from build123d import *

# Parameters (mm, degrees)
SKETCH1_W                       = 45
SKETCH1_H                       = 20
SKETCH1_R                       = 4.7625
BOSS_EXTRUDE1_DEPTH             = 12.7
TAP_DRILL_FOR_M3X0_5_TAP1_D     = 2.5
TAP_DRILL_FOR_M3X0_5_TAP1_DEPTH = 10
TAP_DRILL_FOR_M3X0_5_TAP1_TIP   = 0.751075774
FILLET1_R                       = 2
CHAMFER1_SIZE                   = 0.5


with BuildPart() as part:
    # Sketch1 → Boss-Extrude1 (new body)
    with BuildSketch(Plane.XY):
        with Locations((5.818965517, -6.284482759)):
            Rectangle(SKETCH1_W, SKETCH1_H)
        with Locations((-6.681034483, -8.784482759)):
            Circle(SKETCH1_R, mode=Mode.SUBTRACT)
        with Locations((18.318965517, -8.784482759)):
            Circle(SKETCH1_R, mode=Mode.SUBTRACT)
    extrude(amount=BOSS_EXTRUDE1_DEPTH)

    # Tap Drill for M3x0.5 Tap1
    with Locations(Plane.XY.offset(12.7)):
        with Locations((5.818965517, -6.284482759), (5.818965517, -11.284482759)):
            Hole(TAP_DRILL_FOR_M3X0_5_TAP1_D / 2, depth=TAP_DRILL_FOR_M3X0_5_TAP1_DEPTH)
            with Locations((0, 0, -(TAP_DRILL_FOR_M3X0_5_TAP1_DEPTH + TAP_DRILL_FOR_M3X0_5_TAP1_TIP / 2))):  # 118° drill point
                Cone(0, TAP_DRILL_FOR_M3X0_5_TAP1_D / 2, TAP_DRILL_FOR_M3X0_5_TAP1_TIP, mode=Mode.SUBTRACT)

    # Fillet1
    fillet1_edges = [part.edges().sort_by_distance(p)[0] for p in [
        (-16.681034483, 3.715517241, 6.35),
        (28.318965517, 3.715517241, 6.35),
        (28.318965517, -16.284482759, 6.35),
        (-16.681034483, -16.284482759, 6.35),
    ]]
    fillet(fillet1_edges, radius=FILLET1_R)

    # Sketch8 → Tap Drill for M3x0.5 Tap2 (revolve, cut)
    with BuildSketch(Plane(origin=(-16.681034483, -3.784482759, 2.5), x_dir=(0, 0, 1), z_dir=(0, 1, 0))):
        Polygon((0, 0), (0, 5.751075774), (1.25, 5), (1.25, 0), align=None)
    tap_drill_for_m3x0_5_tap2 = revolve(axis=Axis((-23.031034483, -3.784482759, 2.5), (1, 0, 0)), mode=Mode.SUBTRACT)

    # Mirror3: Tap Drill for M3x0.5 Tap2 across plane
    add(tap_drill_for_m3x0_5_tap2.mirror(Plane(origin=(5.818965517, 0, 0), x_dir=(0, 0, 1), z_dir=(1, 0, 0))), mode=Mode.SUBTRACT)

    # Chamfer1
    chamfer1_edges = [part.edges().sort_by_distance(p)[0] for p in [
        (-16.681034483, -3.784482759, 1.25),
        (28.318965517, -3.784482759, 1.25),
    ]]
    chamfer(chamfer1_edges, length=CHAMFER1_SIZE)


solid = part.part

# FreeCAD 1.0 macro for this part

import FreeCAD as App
import Part
import Sketcher
Q = App.Units.Quantity


def edges_at(feature, points):
    """Names of the edges that pass closest to the given points."""
    edges = feature.Shape.Edges
    near = lambda p: min(range(len(edges)), key=lambda i: edges[i].distToShape(Part.Vertex(*p))[0])
    return sorted({f"Edge{near(p) + 1}" for p in points})


def add_polygon(sketch, points):
    """Adds a closed chain of lines whose ends are joined by coincident constraints."""
    first, n = sketch.GeometryCount, len(points)
    for a, b in zip(points, points[1:] + points[:1]):
        sketch.addGeometry(Part.LineSegment(App.Vector(*a, 0), App.Vector(*b, 0)), False)
    for i in range(n):
        sketch.addConstraint(Sketcher.Constraint("Coincident", first + i, 2, first + (i + 1) % n, 1))

doc = App.newDocument("Part")
body = doc.addObject("PartDesign::Body", "Body")

# Sketch on XY plane
sketch1 = body.newObject("Sketcher::SketchObject", "Sketch")
sketch1.AttachmentSupport = (doc.getObject("XY_Plane"), [""])
sketch1.MapMode = "FlatFace"
add_polygon(sketch1, [(-16.7, 3.7), (-16.7, -16.3), (28.3, -16.3), (28.3, 3.7)])  # lines 0-3
sketch1.addGeometry(Part.Circle(App.Vector(-6.7, -8.8, 0), App.Vector(0, 0, 1), 4.8), False)  # 4
sketch1.addGeometry(Part.Circle(App.Vector(18.3, -8.8, 0), App.Vector(0, 0, 1), 4.8), False)  # 5
sketch1.addConstraint([
    Sketcher.Constraint("Vertical", 0),
    Sketcher.Constraint("Horizontal", 1),
    Sketcher.Constraint("Vertical", 2),
    Sketcher.Constraint("Horizontal", 3),
    Sketcher.Constraint("Equal", 4, 5),
    Sketcher.Constraint("Horizontal", 4, 3, 5, 3),
    Sketcher.Constraint("DistanceX", 1, 1, 1, 2, Q("45 mm")),
    Sketcher.Constraint("DistanceY", 0, 2, 0, 1, Q("20 mm")),
    Sketcher.Constraint("Diameter", 4, Q("9.525 mm")),
    Sketcher.Constraint("DistanceX", 4, 3, 5, 3, Q("25 mm")),
    Sketcher.Constraint("DistanceX", 0, 2, 4, 3, Q("10 mm")),
    Sketcher.Constraint("DistanceY", 0, 2, 4, 3, Q("7.5 mm")),
    Sketcher.Constraint("DistanceX", 4, 3, -1, 1, Q("6.681034 mm")),
    Sketcher.Constraint("DistanceY", 4, 3, -1, 1, Q("8.784483 mm")),
])
pad1 = body.newObject("PartDesign::Pad", "Pad")
pad1.Profile = sketch1
pad1.Length = 12.7

# Sketch on XY plane
sketch2 = body.newObject("Sketcher::SketchObject", "Sketch001")
sketch2.AttachmentSupport = (doc.getObject("XY_Plane"), [""])
sketch2.MapMode = "FlatFace"
sketch2.AttachmentOffset = App.Placement(App.Vector(0, 0, 12.7), App.Rotation())
sketch2.addGeometry([
    Part.Circle(App.Vector(5.8, -6.3, 0), App.Vector(0, 0, 1), 1.2),
    Part.Circle(App.Vector(5.8, -11.3, 0), App.Vector(0, 0, 1), 1.2),
], False)
sketch2.addConstraint([
    Sketcher.Constraint("Equal", 0, 1),
    Sketcher.Constraint("Vertical", 0, 3, 1, 3),
    Sketcher.Constraint("Diameter", 0, Q("2.5 mm")),
    Sketcher.Constraint("DistanceY", 1, 3, 0, 3, Q("5 mm")),
    Sketcher.Constraint("DistanceX", -1, 1, 0, 3, Q("5.818966 mm")),
    Sketcher.Constraint("DistanceY", 0, 3, -1, 1, Q("6.284483 mm")),
])
doc.recompute()
hole = body.newObject("PartDesign::Hole", "Hole")
hole.Profile = sketch2
hole.ThreadType = "None"
hole.Diameter = 2.5
hole.DepthType = "Dimension"
hole.Depth = 10
hole.DrillPoint = "Angled"
hole.DrillPointAngle = 118
doc.recompute()

fillet = body.newObject("PartDesign::Fillet", "Fillet")
fillet.Base = (hole, edges_at(hole, [
    (-16.681, 3.716, 6.35),
    (28.319, 3.716, 6.35),
    (28.319, -16.284, 6.35),
    (-16.681, -16.284, 6.35),
]))
fillet.Radius = 2

# Sketch on XZ plane
sketch3 = body.newObject("Sketcher::SketchObject", "Sketch002")
sketch3.AttachmentSupport = (doc.getObject("XZ_Plane"), [""])
sketch3.MapMode = "FlatFace"
sketch3.AttachmentOffset = App.Placement(App.Vector(0, 0, 3.784483), App.Rotation())
add_polygon(sketch3, [(-10.9, 2.5), (-16.7, 2.5), (-16.7, 3.8), (-11.7, 3.8)])  # lines 0-3
sketch3.addGeometry(Part.LineSegment(App.Vector(-16.7, 2.5, 0), App.Vector(-10.9, 2.5, 0)), True)  # axis
sketch3.addConstraint([
    Sketcher.Constraint("Horizontal", 0),
    Sketcher.Constraint("Vertical", 1),
    Sketcher.Constraint("Horizontal", 2),
    Sketcher.Constraint("Horizontal", 4),
    Sketcher.Constraint("Coincident", 4, 1, 0, 2),
    Sketcher.Constraint("Equal", 0, 4),
    Sketcher.Constraint("DistanceX", 2, 1, 2, 2, Q("5 mm")),
    Sketcher.Constraint("Angle", 3, Q("-59 deg")),
    Sketcher.Constraint("DistanceY", 1, 1, 1, 2, Q("1.25 mm")),
    Sketcher.Constraint("DistanceY", -1, 1, 0, 2, Q("2.5 mm")),
    Sketcher.Constraint("DistanceX", 3, 2, -1, 1, Q("10.929959 mm")),
])
groove = body.newObject("PartDesign::Groove", "Groove")
groove.Profile = sketch3
groove.ReferenceAxis = (sketch3, ["Axis0"])
groove.Angle = 360
doc.recompute()

datumplane = body.newObject("PartDesign::Plane", "DatumPlane")
datumplane.AttachmentSupport = (doc.getObject("YZ_Plane"), [""])
datumplane.MapMode = "FlatFace"
datumplane.AttachmentOffset = App.Placement(App.Vector(0, 0, 5.818966), App.Rotation())
mirrored = body.newObject("PartDesign::Mirrored", "Mirrored")
mirrored.Originals = [groove]
mirrored.MirrorPlane = (datumplane, [""])
body.Tip = mirrored
doc.recompute()

chamfer = body.newObject("PartDesign::Chamfer", "Chamfer")
chamfer.Base = (mirrored, edges_at(mirrored, [(-16.681, -3.784, 1.25), (28.319, -3.784, 1.25)]))
chamfer.Size = 0.5

doc.recompute()
